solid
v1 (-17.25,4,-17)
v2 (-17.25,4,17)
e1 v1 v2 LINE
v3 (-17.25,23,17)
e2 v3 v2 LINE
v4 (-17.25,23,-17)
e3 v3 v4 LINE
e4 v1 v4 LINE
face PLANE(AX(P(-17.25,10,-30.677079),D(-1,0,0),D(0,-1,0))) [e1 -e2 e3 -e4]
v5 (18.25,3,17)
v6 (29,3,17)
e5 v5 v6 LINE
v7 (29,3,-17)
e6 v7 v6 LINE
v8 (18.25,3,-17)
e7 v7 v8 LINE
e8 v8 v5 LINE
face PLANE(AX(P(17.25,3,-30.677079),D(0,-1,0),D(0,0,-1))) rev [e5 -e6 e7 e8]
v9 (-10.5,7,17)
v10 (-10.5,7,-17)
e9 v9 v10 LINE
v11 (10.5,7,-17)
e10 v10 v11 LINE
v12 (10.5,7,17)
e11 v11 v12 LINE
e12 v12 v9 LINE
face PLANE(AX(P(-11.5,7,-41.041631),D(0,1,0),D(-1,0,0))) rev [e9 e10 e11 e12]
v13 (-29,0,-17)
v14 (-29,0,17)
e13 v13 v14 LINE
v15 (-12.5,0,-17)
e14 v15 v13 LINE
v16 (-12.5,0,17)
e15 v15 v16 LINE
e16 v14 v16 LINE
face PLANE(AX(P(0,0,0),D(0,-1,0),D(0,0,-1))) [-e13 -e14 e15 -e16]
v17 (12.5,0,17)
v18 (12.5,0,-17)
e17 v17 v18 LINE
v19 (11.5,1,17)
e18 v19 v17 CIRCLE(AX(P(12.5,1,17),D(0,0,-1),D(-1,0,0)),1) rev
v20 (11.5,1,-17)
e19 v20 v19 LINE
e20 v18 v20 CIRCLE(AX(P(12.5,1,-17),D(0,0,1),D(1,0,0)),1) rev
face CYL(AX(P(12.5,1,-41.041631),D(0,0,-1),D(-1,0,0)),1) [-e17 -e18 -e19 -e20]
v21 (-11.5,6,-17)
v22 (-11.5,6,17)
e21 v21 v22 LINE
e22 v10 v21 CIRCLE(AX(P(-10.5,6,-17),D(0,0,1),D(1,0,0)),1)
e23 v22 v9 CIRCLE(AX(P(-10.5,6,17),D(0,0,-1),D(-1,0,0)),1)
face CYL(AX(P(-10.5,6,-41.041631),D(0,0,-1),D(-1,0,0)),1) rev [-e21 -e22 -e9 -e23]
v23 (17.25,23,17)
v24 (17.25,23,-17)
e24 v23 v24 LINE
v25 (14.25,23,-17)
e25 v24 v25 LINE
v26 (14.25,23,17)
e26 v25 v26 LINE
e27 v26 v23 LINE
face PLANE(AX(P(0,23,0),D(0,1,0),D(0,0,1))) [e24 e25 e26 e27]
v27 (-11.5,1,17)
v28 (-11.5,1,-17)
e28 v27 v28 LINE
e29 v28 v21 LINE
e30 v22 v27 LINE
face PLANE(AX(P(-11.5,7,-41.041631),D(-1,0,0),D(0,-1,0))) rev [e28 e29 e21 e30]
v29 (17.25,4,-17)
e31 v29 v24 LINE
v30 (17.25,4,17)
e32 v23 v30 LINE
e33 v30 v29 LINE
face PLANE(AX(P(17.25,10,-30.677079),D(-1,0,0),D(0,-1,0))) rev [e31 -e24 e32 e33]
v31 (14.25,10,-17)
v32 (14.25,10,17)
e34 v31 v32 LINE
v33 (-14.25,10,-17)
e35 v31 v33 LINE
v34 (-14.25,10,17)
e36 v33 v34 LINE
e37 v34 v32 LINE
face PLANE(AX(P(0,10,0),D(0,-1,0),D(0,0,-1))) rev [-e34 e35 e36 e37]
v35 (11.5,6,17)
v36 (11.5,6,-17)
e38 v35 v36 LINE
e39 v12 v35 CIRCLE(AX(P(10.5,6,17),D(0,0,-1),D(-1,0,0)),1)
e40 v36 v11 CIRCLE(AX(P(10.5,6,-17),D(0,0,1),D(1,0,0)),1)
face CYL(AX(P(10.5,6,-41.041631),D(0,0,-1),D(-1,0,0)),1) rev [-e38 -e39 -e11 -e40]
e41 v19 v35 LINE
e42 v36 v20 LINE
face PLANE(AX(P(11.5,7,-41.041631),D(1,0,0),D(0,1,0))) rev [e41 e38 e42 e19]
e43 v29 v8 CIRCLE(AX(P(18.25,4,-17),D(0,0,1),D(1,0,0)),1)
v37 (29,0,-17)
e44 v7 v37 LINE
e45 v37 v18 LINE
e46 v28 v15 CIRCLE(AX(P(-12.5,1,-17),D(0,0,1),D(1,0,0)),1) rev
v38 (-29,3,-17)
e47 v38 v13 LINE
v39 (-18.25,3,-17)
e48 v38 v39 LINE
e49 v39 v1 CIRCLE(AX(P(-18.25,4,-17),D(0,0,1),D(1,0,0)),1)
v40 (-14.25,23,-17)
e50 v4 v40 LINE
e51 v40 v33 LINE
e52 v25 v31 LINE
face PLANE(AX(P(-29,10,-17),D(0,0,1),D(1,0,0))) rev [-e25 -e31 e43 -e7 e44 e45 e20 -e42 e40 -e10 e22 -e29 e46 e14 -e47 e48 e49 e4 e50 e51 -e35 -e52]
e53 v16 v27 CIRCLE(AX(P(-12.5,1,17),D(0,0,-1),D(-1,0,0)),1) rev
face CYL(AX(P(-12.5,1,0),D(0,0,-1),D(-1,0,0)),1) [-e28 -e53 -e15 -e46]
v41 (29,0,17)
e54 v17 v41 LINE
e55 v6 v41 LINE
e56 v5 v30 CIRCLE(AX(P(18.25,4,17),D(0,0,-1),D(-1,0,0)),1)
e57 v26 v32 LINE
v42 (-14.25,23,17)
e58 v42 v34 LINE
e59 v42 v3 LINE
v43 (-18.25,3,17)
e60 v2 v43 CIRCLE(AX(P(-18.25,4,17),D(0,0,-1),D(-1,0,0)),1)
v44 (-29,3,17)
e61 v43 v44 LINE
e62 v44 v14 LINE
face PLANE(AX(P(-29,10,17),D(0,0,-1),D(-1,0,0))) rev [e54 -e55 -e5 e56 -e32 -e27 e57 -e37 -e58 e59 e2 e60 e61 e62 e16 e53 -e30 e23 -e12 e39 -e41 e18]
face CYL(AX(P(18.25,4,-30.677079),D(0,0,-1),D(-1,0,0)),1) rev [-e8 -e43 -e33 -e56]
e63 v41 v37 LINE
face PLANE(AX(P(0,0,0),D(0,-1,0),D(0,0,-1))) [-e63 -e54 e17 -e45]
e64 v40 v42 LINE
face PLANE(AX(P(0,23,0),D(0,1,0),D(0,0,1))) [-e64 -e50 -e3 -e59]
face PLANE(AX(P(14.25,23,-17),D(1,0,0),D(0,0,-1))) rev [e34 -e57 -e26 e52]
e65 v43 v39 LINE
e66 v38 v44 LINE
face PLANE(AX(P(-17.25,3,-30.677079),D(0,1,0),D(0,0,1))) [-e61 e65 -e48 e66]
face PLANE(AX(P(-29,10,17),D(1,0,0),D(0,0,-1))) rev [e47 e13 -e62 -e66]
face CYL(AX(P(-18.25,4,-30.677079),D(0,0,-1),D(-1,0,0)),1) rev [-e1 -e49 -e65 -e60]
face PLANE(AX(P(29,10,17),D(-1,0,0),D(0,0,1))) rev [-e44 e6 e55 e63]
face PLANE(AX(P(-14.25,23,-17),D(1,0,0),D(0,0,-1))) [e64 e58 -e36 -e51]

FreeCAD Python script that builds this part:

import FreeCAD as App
import Part
import Sketcher
Q = App.Units.Quantity


def edges_at(feature, points):
    """Names of the edges that pass closest to the given points."""
    edges = feature.Shape.Edges
    near = lambda p: min(range(len(edges)), key=lambda i: edges[i].distToShape(Part.Vertex(*p))[0])
    return sorted({f"Edge{near(p) + 1}" for p in points})


def add_polygon(sketch, points):
    """Adds a closed chain of lines whose ends are joined by coincident constraints."""
    first, n = sketch.GeometryCount, len(points)
    for a, b in zip(points, points[1:] + points[:1]):
        sketch.addGeometry(Part.LineSegment(App.Vector(*a, 0), App.Vector(*b, 0)), False)
    for i in range(n):
        sketch.addConstraint(Sketcher.Constraint("Coincident", first + i, 2, first + (i + 1) % n, 1))

doc = App.newDocument("Part")
body = doc.addObject("PartDesign::Body", "Body")

sketch1 = body.newObject("Sketcher::SketchObject", "Sketch")
sketch1.AttachmentSupport = (doc.getObject("XZ_Plane"), [""])
sketch1.MapMode = "FlatFace"
add_polygon(sketch1, [(-29, -17), (-29, 17), (29, 17), (29, -17)])
sketch1.addConstraint(Sketcher.Constraint("Vertical", 0))
sketch1.addConstraint(Sketcher.Constraint("Horizontal", 1))
sketch1.addConstraint(Sketcher.Constraint("Vertical", 2))
sketch1.addConstraint(Sketcher.Constraint("Horizontal", 3))
sketch1.addConstraint(Sketcher.Constraint("Symmetric", 0, 2, 2, 2, -1, 1))
sketch1.addConstraint(Sketcher.Constraint("DistanceX", 1, 1, 1, 2, Q("58 mm")))
sketch1.addConstraint(Sketcher.Constraint("DistanceY", 0, 1, 0, 2, Q("34 mm")))
pad1 = body.newObject("PartDesign::Pad", "Pad")
pad1.Profile = sketch1
pad1.Length = 10
pad1.Reversed = True

sketch2 = body.newObject("Sketcher::SketchObject", "Sketch001")
sketch2.AttachmentSupport = (doc.getObject("XY_Plane"), [""])
sketch2.MapMode = "FlatFace"
sketch2.AttachmentOffset = App.Placement(App.Vector(0, 0, 17), App.Rotation())
add_polygon(sketch2, [(-12, 7), (-12, 0), (12, 0), (12, 7)])
sketch2.addConstraint(Sketcher.Constraint("Vertical", 0))
sketch2.addConstraint(Sketcher.Constraint("Horizontal", 1))
sketch2.addConstraint(Sketcher.Constraint("Vertical", 2))
sketch2.addConstraint(Sketcher.Constraint("Horizontal", 3))
sketch2.addConstraint(Sketcher.Constraint("Symmetric", 0, 2, 1, 2, -1, 1))
sketch2.addConstraint(Sketcher.Constraint("DistanceX", 1, 1, 1, 2, Q("23 mm")))
sketch2.addConstraint(Sketcher.Constraint("DistanceY", 0, 2, 0, 1, Q("7 mm")))
pocket1 = body.newObject("PartDesign::Pocket", "Pocket")
pocket1.Profile = sketch2
pocket1.Length = 34

sketch3 = body.newObject("Sketcher::SketchObject", "Sketch002")
sketch3.AttachmentSupport = (doc.getObject("XY_Plane"), [""])
sketch3.MapMode = "FlatFace"
sketch3.AttachmentOffset = App.Placement(App.Vector(0, 0, 17), App.Rotation())
add_polygon(sketch3, [(17, 10), (17, 3), (29, 3), (29, 10)])
sketch3.addConstraint(Sketcher.Constraint("Vertical", 0))
sketch3.addConstraint(Sketcher.Constraint("Horizontal", 1))
sketch3.addConstraint(Sketcher.Constraint("Vertical", 2))
sketch3.addConstraint(Sketcher.Constraint("Horizontal", 3))
sketch3.addConstraint(Sketcher.Constraint("DistanceY", 0, 2, 0, 1, Q("7 mm")))
sketch3.addConstraint(Sketcher.Constraint("DistanceY", -1, 1, 0, 2, Q("3 mm")))
sketch3.addConstraint(Sketcher.Constraint("DistanceX", -1, 1, 1, 2, Q("29 mm")))
sketch3.addConstraint(Sketcher.Constraint("DistanceX", 1, 1, 1, 2, Q("11.75 mm")))
pocket2 = body.newObject("PartDesign::Pocket", "Pocket001")
pocket2.Profile = sketch3
pocket2.Length = 34
doc.recompute()

mirrored = body.newObject("PartDesign::Mirrored", "Mirrored")
mirrored.Originals = [pocket2]
mirrored.MirrorPlane = (doc.getObject("YZ_Plane"), [""])
body.Tip = mirrored

sketch4 = body.newObject("Sketcher::SketchObject", "Sketch003")
sketch4.AttachmentSupport = (doc.getObject("XZ_Plane"), [""])
sketch4.MapMode = "FlatFace"
sketch4.AttachmentOffset = App.Placement(App.Vector(0, 0, -10), App.Rotation())
add_polygon(sketch4, [(14.2, -17), (14.2, 17), (17.2, 17), (17.2, -17)])
sketch4.addConstraint(Sketcher.Constraint("Vertical", 0))
sketch4.addConstraint(Sketcher.Constraint("Horizontal", 1))
sketch4.addConstraint(Sketcher.Constraint("Vertical", 2))
sketch4.addConstraint(Sketcher.Constraint("Horizontal", 3))
sketch4.addConstraint(Sketcher.Constraint("DistanceX", 1, 1, 1, 2, Q("3 mm")))
sketch4.addConstraint(Sketcher.Constraint("DistanceY", 0, 1, 0, 2, Q("34 mm")))
sketch4.addConstraint(Sketcher.Constraint("DistanceY", -1, 1, 0, 2, Q("17 mm")))
sketch4.addConstraint(Sketcher.Constraint("DistanceX", -1, 1, 0, 2, Q("14.25 mm")))
pad2 = body.newObject("PartDesign::Pad", "Pad001")
pad2.Profile = sketch4
pad2.Length = 13
pad2.Reversed = True
doc.recompute()

mirrored2 = body.newObject("PartDesign::Mirrored", "Mirrored001")
mirrored2.Originals = [pad2]
mirrored2.MirrorPlane = (doc.getObject("YZ_Plane"), [""])
body.Tip = mirrored2
doc.recompute()

fillet = body.newObject("PartDesign::Fillet", "Fillet")
fillet.Base = (mirrored2, edges_at(mirrored2, [
    (-11.5, 0, 0),
    (-11.5, 7, 0),
    (11.5, 7, 0),
    (11.5, 0, 0),
    (17.25, 3, 0),
    (-17.25, 3, 0),
]))
fillet.Radius = 1

doc.recompute()
